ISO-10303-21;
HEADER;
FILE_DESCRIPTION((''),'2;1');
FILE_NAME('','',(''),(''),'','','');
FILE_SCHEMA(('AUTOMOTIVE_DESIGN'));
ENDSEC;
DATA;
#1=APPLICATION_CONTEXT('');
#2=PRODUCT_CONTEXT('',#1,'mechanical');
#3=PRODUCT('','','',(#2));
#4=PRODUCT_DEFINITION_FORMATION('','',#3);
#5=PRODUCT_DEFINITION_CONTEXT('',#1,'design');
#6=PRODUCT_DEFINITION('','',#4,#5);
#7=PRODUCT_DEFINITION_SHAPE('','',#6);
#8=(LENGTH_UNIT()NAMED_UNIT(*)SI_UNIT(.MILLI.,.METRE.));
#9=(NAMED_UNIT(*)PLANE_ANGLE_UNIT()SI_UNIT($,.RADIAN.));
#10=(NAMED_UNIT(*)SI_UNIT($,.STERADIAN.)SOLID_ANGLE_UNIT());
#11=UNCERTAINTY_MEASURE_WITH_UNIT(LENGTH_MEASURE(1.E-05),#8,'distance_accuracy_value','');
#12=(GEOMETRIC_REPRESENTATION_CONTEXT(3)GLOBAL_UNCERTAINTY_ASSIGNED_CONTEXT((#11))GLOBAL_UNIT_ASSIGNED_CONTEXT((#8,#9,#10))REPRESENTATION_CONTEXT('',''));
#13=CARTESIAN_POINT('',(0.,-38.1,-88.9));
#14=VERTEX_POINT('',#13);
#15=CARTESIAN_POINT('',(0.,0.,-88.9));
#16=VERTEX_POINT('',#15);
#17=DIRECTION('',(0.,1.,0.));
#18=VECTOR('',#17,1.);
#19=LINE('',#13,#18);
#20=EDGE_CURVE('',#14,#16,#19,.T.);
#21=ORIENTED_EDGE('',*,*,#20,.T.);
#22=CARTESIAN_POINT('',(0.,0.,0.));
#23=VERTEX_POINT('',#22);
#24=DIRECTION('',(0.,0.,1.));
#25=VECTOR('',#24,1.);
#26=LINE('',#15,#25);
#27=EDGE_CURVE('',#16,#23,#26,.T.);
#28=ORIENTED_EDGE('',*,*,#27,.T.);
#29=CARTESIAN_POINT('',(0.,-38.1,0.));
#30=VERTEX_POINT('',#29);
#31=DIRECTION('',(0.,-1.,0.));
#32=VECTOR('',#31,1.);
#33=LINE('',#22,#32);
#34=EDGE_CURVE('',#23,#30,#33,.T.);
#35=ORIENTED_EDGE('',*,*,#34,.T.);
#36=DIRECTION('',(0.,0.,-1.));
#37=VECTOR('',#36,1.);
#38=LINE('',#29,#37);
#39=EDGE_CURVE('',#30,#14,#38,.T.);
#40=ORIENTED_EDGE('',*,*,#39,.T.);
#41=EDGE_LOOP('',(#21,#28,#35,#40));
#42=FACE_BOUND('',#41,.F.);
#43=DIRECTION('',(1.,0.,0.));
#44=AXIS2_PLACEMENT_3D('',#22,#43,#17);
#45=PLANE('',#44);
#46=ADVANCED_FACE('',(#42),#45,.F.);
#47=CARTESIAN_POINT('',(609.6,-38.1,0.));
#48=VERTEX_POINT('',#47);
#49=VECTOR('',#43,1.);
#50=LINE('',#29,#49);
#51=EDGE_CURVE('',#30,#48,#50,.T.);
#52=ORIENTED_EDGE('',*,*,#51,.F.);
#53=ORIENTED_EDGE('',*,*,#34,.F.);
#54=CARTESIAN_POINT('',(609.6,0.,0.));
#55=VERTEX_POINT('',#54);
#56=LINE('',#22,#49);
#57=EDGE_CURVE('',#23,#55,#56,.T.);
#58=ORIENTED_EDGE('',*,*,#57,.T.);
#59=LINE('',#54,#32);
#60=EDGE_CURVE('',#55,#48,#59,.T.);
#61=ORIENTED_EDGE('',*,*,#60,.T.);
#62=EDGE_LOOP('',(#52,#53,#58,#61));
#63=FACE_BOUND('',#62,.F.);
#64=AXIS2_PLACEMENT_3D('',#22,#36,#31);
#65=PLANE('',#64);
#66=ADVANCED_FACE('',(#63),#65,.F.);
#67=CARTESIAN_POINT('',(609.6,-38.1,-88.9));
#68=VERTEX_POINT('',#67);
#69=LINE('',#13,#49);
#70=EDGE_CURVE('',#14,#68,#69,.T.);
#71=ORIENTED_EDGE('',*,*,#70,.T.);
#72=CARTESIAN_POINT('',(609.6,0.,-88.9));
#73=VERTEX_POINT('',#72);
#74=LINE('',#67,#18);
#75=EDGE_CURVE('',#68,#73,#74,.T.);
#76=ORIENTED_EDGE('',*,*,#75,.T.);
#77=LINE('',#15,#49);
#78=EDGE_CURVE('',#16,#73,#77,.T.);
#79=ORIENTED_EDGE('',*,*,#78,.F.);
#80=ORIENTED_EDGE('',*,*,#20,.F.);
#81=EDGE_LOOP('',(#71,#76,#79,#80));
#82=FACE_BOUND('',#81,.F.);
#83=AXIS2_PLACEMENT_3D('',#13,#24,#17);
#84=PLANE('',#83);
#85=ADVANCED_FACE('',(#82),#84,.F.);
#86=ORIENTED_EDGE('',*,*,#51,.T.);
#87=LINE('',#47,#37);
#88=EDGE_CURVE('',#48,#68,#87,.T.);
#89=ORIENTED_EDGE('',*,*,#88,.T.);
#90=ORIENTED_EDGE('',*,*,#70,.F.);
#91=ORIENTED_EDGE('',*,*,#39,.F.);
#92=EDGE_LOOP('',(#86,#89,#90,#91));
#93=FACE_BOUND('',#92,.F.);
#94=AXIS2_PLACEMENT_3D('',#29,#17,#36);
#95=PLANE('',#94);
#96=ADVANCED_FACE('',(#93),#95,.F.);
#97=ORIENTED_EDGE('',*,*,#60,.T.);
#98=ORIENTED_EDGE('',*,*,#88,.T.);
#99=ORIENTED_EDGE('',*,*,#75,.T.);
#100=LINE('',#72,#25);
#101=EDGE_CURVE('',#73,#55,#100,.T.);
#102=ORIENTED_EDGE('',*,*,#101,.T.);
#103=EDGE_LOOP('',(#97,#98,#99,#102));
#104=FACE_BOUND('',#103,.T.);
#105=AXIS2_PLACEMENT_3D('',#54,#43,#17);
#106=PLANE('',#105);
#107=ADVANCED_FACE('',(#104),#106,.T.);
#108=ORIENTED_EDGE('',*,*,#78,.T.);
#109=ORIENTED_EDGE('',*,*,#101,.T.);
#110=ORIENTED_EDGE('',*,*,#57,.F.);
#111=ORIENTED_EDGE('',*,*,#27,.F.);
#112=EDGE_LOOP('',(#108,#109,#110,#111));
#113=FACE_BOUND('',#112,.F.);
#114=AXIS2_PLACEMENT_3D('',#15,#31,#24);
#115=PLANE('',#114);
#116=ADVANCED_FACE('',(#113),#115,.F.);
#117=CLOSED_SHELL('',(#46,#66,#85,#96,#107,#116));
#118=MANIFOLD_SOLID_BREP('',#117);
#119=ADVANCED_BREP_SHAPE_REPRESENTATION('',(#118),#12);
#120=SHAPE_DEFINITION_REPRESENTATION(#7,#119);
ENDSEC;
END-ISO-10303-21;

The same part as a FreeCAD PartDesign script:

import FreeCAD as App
import Part
import Sketcher
from FreeCAD import Vector
Q = App.Units.Quantity

doc = App.newDocument("Part")
body = doc.addObject("PartDesign::Body", "Body")

# Sketch on YZ plane
sketch1 = body.newObject("Sketcher::SketchObject", "Sketch")
sketch1.AttachmentSupport = (doc.getObject("YZ_Plane"), [""])
sketch1.MapMode = "FlatFace"
sketch1.addGeometry(Part.LineSegment(Vector(0, -89, 0), Vector(0, 0, 0)), False)
sketch1.addGeometry(Part.LineSegment(Vector(0, 0, 0), Vector(-38, 0, 0)), False)
sketch1.addGeometry(Part.LineSegment(Vector(-38, 0, 0), Vector(-38, -89, 0)), False)
sketch1.addGeometry(Part.LineSegment(Vector(-38, -89, 0), Vector(0, -89, 0)), False)
sketch1.addConstraint(Sketcher.Constraint("Coincident", 0, 2, 1, 1))
sketch1.addConstraint(Sketcher.Constraint("Coincident", 1, 2, 2, 1))
sketch1.addConstraint(Sketcher.Constraint("Coincident", 2, 2, 3, 1))
sketch1.addConstraint(Sketcher.Constraint("Coincident", 3, 2, 0, 1))
sketch1.addConstraint(Sketcher.Constraint("Vertical", 0))
sketch1.addConstraint(Sketcher.Constraint("Horizontal", 1))
sketch1.addConstraint(Sketcher.Constraint("Vertical", 2))
sketch1.addConstraint(Sketcher.Constraint("Horizontal", 3))
sketch1.addConstraint(Sketcher.Constraint("Coincident", 0, 2, -1, 1))
sketch1.addConstraint(Sketcher.Constraint("DistanceX", 1, 2, 1, 1, Q("1.5 in")))
sketch1.addConstraint(Sketcher.Constraint("DistanceY", 0, 1, 0, 2, Q("3.5 in")))
pad1 = body.newObject("PartDesign::Pad", "Pad")
pad1.Profile = sketch1
pad1.Length = Q("24 in")

doc.recompute()
